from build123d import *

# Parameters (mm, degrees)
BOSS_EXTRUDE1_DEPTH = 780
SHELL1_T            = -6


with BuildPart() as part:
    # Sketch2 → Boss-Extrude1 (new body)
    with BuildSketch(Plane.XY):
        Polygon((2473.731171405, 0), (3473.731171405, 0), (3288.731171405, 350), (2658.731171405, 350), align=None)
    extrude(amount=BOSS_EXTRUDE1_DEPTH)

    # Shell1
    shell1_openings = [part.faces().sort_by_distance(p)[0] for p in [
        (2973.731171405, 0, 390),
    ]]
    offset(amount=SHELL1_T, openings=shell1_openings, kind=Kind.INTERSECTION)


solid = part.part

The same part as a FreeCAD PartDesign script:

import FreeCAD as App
import Part
import Sketcher


def faces_at(feature, points):
    """Names of the faces that lie closest to the given points."""
    faces = feature.Shape.Faces
    near = lambda p: min(range(len(faces)), key=lambda i: faces[i].distToShape(Part.Vertex(*p))[0])
    return sorted({f"Face{near(p) + 1}" for p in points})

doc = App.newDocument("Part")
body = doc.addObject("PartDesign::Body", "Body")

sketch1 = doc.addObject("Sketcher::SketchObject", "Sketch")
body.addObject(sketch1)
sketch1.AttachmentSupport = (doc.XY_Plane, [""])
sketch1.MapMode = "FlatFace"
sketch1.addGeometry([
    Part.LineSegment(App.Vector(2474, 0, 0), App.Vector(3474, 0, 0)),
    Part.LineSegment(App.Vector(3474, 0, 0), App.Vector(3289, 350, 0)),
    Part.LineSegment(App.Vector(3289, 350, 0), App.Vector(2659, 350, 0)),
    Part.LineSegment(App.Vector(2659, 350, 0), App.Vector(2474, 0, 0)),
], False)
sketch1.addConstraint([
    Sketcher.Constraint("Coincident", 0, 2, 1, 1),
    Sketcher.Constraint("Coincident", 1, 2, 2, 1),
    Sketcher.Constraint("Coincident", 2, 2, 3, 1),
    Sketcher.Constraint("Coincident", 3, 2, 0, 1),
    Sketcher.Constraint("Horizontal", 0),
    Sketcher.Constraint("Horizontal", 2),
    Sketcher.Constraint("PointOnObject", 0, 2, -1),
    Sketcher.Constraint("Equal", 1, 3),
    Sketcher.Constraint("DistanceX", 0, 1, 0, 2, 1000.0),
    Sketcher.Constraint("DistanceX", 2, 2, 2, 1, 630.0),
    Sketcher.Constraint("DistanceY", -1, 1, 1, 2, 350.0),
    Sketcher.Constraint("DistanceX", -1, 1, 0, 2, 3473.731171),
])
pad1 = doc.addObject("PartDesign::Pad", "Pad")
body.addObject(pad1)
pad1.Profile = sketch1
pad1.Length = 780
doc.recompute()

thickness = doc.addObject("PartDesign::Thickness", "Thickness")
body.addObject(thickness)
thickness.Base = (pad1, faces_at(pad1, [(2973.731, 0, 390)]))
thickness.Value = 6
thickness.Reversed = True
thickness.Join = "Intersection"

doc.recompute()
